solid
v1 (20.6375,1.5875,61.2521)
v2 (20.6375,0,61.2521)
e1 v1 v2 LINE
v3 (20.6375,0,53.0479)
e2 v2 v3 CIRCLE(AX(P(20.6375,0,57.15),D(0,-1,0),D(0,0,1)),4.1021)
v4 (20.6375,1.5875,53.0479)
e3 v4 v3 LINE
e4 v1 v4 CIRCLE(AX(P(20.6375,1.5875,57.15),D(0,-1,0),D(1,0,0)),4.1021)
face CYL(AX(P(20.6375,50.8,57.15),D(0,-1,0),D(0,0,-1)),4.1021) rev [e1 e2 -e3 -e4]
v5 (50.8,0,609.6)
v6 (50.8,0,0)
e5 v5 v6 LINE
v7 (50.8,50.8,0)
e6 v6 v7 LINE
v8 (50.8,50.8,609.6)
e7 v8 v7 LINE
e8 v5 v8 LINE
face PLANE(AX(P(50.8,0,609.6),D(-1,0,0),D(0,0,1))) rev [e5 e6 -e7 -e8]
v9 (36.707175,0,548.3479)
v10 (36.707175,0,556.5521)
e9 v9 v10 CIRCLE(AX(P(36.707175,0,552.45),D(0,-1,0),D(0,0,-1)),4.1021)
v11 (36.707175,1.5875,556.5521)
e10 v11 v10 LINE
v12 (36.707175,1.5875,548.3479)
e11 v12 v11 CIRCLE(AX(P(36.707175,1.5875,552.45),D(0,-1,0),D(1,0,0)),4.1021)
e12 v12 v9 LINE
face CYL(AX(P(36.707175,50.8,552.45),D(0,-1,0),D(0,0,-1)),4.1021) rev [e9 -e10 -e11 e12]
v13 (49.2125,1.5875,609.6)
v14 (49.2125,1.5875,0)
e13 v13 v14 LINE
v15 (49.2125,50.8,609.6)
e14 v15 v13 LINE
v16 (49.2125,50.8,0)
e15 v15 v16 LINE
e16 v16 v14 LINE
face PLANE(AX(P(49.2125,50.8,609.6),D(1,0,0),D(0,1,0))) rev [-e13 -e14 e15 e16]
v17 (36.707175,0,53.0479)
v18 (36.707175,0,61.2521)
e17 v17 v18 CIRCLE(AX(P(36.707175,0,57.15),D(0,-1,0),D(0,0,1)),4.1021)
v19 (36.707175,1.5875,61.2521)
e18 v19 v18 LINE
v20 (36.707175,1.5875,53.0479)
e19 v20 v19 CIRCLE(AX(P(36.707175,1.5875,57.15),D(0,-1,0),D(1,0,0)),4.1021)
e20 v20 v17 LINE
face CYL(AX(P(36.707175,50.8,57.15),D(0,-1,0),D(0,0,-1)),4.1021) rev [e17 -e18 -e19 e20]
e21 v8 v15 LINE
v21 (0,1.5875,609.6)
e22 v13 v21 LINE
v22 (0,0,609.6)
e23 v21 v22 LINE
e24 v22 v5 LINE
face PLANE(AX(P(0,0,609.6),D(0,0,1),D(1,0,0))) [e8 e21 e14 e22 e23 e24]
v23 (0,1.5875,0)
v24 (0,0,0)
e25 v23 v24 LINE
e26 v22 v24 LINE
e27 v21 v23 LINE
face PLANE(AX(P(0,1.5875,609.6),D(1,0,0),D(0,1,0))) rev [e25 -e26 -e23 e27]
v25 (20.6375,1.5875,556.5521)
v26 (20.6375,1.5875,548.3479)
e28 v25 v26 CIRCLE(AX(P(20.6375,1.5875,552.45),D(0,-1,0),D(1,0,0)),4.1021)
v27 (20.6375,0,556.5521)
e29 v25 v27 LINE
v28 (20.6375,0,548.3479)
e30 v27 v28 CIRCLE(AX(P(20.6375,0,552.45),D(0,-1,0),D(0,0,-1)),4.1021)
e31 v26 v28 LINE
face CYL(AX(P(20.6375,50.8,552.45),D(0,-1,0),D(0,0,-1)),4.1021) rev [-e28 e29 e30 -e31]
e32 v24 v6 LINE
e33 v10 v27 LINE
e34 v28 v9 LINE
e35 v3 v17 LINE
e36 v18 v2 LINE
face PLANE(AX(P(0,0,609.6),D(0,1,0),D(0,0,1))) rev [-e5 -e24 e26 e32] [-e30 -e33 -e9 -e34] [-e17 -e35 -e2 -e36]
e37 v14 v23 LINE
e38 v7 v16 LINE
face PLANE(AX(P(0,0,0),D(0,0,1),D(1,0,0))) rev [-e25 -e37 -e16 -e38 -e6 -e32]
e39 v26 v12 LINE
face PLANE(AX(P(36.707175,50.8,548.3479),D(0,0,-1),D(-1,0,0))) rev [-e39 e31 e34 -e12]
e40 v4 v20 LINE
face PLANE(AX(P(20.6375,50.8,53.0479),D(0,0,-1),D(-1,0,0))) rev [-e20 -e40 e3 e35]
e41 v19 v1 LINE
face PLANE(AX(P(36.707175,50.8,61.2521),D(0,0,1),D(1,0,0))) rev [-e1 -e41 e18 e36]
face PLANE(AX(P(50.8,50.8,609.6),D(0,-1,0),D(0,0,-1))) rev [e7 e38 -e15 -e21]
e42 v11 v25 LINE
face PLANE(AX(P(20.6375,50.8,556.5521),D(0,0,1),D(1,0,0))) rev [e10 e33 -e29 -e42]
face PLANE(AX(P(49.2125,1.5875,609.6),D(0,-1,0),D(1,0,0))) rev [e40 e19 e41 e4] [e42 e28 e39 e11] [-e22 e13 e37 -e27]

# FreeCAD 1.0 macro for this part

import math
import FreeCAD as App
import Part
import Sketcher

V = App.Vector
Q = App.Units.Quantity


def add_polygon(sketch, points):
    """Adds a closed chain of lines whose ends are joined by coincident constraints."""
    first, n = sketch.GeometryCount, len(points)
    for a, b in zip(points, points[1:] + points[:1]):
        sketch.addGeometry(Part.LineSegment(App.Vector(*a, 0), App.Vector(*b, 0)), False)
    for i in range(n):
        sketch.addConstraint(Sketcher.Constraint("Coincident", first + i, 2, first + (i + 1) % n, 1))

doc = App.newDocument("Part")
body = doc.addObject("PartDesign::Body", "Body")

# Sketch on XY plane
sketch1 = body.newObject("Sketcher::SketchObject", "Sketch")
sketch1.AttachmentSupport = (doc.getObject("XY_Plane"), [""])
sketch1.MapMode = "FlatFace"
add_polygon(sketch1, [(0, 0), (50.8, 0), (50.8, 50.8), (49.2125, 50.8), (49.2125, 1.5875), (0, 1.5875)])  # lines 0-5
sketch1.addConstraint(Sketcher.Constraint("Horizontal", 0))
sketch1.addConstraint(Sketcher.Constraint("Vertical", 1))
sketch1.addConstraint(Sketcher.Constraint("Horizontal", 2))
sketch1.addConstraint(Sketcher.Constraint("Vertical", 3))
sketch1.addConstraint(Sketcher.Constraint("Horizontal", 4))
sketch1.addConstraint(Sketcher.Constraint("Vertical", 5))
sketch1.addConstraint(Sketcher.Constraint("Coincident", 5, 2, -1, 1))
sketch1.addConstraint(Sketcher.Constraint("Equal", 0, 1))
sketch1.addConstraint(Sketcher.Constraint("Equal", 4, 3))
sketch1.addConstraint(Sketcher.Constraint("DistanceX", 0, 1, 0, 2, Q("2 in")))
sketch1.addConstraint(Sketcher.Constraint("DistanceX", 2, 2, 2, 1, Q("0.0625 in")))
pad1 = body.newObject("PartDesign::Pad", "Pad")
pad1.Profile = sketch1
pad1.Length = Q("24 in")

# Sketch on XZ plane
sketch2 = body.newObject("Sketcher::SketchObject", "Sketch001")
sketch2.AttachmentSupport = (doc.getObject("XZ_Plane"), [""])
sketch2.MapMode = "FlatFace"
sketch2.addGeometry(Part.LineSegment(V(36.707175, 556.5521, 0), V(20.6375, 556.5521, 0)), False)
sketch2.addGeometry(Part.ArcOfCircle(Part.Circle(V(20.6375, 552.45, 0), V(0, 0, 1), 4.1021), math.radians(90), math.radians(270)), False)
sketch2.addGeometry(Part.LineSegment(V(20.6375, 548.3479, 0), V(36.707175, 548.3479, 0)), False)
sketch2.addGeometry(Part.ArcOfCircle(Part.Circle(V(36.707175, 552.45, 0), V(0, 0, 1), 4.1021), math.radians(-90), math.radians(90)), False)
sketch2.addGeometry(Part.LineSegment(V(36.707175, 61.2521, 0), V(20.6375, 61.2521, 0)), False)
sketch2.addGeometry(Part.ArcOfCircle(Part.Circle(V(20.6375, 57.15, 0), V(0, 0, 1), 4.1021), math.radians(90), math.radians(270)), False)
sketch2.addGeometry(Part.LineSegment(V(20.6375, 53.0479, 0), V(36.707175, 53.0479, 0)), False)
sketch2.addGeometry(Part.ArcOfCircle(Part.Circle(V(36.707175, 57.15, 0), V(0, 0, 1), 4.1021), math.radians(-90), math.radians(90)), False)
sketch2.addConstraint(Sketcher.Constraint("Tangent", 0, 2, 1, 1))
sketch2.addConstraint(Sketcher.Constraint("Tangent", 1, 2, 2, 1))
sketch2.addConstraint(Sketcher.Constraint("Tangent", 2, 2, 3, 1))
sketch2.addConstraint(Sketcher.Constraint("Tangent", 3, 2, 0, 1))
sketch2.addConstraint(Sketcher.Constraint("Tangent", 4, 2, 5, 1))
sketch2.addConstraint(Sketcher.Constraint("Tangent", 5, 2, 6, 1))
sketch2.addConstraint(Sketcher.Constraint("Tangent", 6, 2, 7, 1))
sketch2.addConstraint(Sketcher.Constraint("Tangent", 7, 2, 4, 1))
sketch2.addConstraint(Sketcher.Constraint("Horizontal", 0))
sketch2.addConstraint(Sketcher.Constraint("Horizontal", 2))
sketch2.addConstraint(Sketcher.Constraint("Horizontal", 4))
sketch2.addConstraint(Sketcher.Constraint("Horizontal", 6))
sketch2.addConstraint(Sketcher.Constraint("Equal", 3, 5))
sketch2.addConstraint(Sketcher.Constraint("Vertical", 1, 3, 5, 3))
sketch2.addConstraint(Sketcher.Constraint("Vertical", 3, 3, 7, 3))
sketch2.addConstraint(Sketcher.Constraint("Radius", 1, Q("0.1615 in")))
sketch2.addConstraint(Sketcher.Constraint("DistanceY", 5, 3, 1, 3, Q("19.5 in")))
sketch2.addConstraint(Sketcher.Constraint("DistanceY", -1, 1, 1, 3, Q("21.75 in")))
sketch2.addConstraint(Sketcher.Constraint("DistanceX", -1, 1, 1, 3, Q("0.8125 in")))
sketch2.addConstraint(Sketcher.Constraint("DistanceX", 0, 2, 0, 1, 16.069675))
pocket1 = body.newObject("PartDesign::Pocket", "Pocket")
pocket1.Profile = sketch2
pocket1.Type = "ThroughAll"

doc.recompute()
